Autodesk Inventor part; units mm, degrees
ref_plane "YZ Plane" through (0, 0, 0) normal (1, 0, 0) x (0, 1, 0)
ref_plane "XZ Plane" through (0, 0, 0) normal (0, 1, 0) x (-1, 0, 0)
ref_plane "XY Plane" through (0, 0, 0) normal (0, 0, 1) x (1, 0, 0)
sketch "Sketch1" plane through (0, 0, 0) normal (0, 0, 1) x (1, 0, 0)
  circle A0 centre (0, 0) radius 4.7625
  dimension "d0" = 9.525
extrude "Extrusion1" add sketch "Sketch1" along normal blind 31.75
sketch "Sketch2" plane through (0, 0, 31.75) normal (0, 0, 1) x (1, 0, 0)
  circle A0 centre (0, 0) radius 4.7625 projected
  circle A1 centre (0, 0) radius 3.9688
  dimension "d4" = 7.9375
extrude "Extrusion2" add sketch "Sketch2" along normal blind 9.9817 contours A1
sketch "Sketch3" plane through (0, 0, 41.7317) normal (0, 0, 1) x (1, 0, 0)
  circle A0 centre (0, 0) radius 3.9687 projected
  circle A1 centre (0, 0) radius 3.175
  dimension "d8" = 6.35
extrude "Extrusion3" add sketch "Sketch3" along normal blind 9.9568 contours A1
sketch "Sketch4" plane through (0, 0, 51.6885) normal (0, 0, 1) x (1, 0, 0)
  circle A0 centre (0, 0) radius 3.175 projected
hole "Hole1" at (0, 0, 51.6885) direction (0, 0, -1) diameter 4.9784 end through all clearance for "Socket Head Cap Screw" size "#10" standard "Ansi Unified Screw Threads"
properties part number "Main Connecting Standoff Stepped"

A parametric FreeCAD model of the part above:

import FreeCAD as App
import Part
import Sketcher
from FreeCAD import Vector
Q = App.Units.Quantity

doc = App.newDocument("Part")
body = doc.addObject("PartDesign::Body", "Body")

# Sketch on XY plane
sketch1 = body.newObject("Sketcher::SketchObject", "Sketch")
sketch1.AttachmentSupport = (doc.getObject("XY_Plane"), [""])
sketch1.MapMode = "FlatFace"
sketch1.addGeometry(Part.Circle(Vector(0, 0, 0), Vector(0, 0, 1), 4.7625), False)
sketch1.addConstraint([
    Sketcher.Constraint("Coincident", 0, 3, -1, 1),
    Sketcher.Constraint("Diameter", 0, Q("0.375 in")),
])
pad1 = body.newObject("PartDesign::Pad", "Pad")
pad1.Profile = sketch1
pad1.Length = Q("1.25 in")

# Sketch on XY plane
sketch2 = body.newObject("Sketcher::SketchObject", "Sketch001")
sketch2.AttachmentSupport = (doc.getObject("XY_Plane"), [""])
sketch2.MapMode = "FlatFace"
sketch2.AttachmentOffset = App.Placement(Vector(0, 0, 1.25 * 25.4), App.Rotation())
sketch2.addGeometry(Part.Circle(Vector(0, 0, 0), Vector(0, 0, 1), 3.9688), False)
sketch2.addConstraint([
    Sketcher.Constraint("Coincident", 0, 3, -1, 1),
    Sketcher.Constraint("Diameter", 0, Q("0.3125 in")),
])
pad2 = body.newObject("PartDesign::Pad", "Pad001")
pad2.Profile = sketch2
pad2.Length = 9.9817

# Sketch on XY plane
sketch3 = body.newObject("Sketcher::SketchObject", "Sketch002")
sketch3.AttachmentSupport = (doc.getObject("XY_Plane"), [""])
sketch3.MapMode = "FlatFace"
sketch3.AttachmentOffset = App.Placement(Vector(0, 0, 41.7317), App.Rotation())
sketch3.addGeometry(Part.Circle(Vector(0, 0, 0), Vector(0, 0, 1), 3.175), False)
sketch3.addConstraint([
    Sketcher.Constraint("Coincident", 0, 3, -1, 1),
    Sketcher.Constraint("Diameter", 0, Q("0.25 in")),
])
pad3 = body.newObject("PartDesign::Pad", "Pad002")
pad3.Profile = sketch3
pad3.Length = Q("0.392 in")

# Sketch on XY plane
sketch4 = body.newObject("Sketcher::SketchObject", "Sketch003")
sketch4.AttachmentSupport = (doc.getObject("XY_Plane"), [""])
sketch4.MapMode = "FlatFace"
sketch4.AttachmentOffset = App.Placement(Vector(0, 0, 51.6885), App.Rotation())
sketch4.addGeometry(Part.Circle(Vector(0, 0, 0), Vector(0, 0, 1), 2.4892), False)
sketch4.addConstraint([
    Sketcher.Constraint("Coincident", 0, 3, -1, 1),
    Sketcher.Constraint("Diameter", 0, Q("0.196 in")),
])
doc.recompute()
hole = body.newObject("PartDesign::Hole", "Hole")
hole.Profile = sketch4
hole.ThreadType = "None"
hole.Diameter = Q("0.196 in")
hole.DepthType = "ThroughAll"

doc.recompute()
